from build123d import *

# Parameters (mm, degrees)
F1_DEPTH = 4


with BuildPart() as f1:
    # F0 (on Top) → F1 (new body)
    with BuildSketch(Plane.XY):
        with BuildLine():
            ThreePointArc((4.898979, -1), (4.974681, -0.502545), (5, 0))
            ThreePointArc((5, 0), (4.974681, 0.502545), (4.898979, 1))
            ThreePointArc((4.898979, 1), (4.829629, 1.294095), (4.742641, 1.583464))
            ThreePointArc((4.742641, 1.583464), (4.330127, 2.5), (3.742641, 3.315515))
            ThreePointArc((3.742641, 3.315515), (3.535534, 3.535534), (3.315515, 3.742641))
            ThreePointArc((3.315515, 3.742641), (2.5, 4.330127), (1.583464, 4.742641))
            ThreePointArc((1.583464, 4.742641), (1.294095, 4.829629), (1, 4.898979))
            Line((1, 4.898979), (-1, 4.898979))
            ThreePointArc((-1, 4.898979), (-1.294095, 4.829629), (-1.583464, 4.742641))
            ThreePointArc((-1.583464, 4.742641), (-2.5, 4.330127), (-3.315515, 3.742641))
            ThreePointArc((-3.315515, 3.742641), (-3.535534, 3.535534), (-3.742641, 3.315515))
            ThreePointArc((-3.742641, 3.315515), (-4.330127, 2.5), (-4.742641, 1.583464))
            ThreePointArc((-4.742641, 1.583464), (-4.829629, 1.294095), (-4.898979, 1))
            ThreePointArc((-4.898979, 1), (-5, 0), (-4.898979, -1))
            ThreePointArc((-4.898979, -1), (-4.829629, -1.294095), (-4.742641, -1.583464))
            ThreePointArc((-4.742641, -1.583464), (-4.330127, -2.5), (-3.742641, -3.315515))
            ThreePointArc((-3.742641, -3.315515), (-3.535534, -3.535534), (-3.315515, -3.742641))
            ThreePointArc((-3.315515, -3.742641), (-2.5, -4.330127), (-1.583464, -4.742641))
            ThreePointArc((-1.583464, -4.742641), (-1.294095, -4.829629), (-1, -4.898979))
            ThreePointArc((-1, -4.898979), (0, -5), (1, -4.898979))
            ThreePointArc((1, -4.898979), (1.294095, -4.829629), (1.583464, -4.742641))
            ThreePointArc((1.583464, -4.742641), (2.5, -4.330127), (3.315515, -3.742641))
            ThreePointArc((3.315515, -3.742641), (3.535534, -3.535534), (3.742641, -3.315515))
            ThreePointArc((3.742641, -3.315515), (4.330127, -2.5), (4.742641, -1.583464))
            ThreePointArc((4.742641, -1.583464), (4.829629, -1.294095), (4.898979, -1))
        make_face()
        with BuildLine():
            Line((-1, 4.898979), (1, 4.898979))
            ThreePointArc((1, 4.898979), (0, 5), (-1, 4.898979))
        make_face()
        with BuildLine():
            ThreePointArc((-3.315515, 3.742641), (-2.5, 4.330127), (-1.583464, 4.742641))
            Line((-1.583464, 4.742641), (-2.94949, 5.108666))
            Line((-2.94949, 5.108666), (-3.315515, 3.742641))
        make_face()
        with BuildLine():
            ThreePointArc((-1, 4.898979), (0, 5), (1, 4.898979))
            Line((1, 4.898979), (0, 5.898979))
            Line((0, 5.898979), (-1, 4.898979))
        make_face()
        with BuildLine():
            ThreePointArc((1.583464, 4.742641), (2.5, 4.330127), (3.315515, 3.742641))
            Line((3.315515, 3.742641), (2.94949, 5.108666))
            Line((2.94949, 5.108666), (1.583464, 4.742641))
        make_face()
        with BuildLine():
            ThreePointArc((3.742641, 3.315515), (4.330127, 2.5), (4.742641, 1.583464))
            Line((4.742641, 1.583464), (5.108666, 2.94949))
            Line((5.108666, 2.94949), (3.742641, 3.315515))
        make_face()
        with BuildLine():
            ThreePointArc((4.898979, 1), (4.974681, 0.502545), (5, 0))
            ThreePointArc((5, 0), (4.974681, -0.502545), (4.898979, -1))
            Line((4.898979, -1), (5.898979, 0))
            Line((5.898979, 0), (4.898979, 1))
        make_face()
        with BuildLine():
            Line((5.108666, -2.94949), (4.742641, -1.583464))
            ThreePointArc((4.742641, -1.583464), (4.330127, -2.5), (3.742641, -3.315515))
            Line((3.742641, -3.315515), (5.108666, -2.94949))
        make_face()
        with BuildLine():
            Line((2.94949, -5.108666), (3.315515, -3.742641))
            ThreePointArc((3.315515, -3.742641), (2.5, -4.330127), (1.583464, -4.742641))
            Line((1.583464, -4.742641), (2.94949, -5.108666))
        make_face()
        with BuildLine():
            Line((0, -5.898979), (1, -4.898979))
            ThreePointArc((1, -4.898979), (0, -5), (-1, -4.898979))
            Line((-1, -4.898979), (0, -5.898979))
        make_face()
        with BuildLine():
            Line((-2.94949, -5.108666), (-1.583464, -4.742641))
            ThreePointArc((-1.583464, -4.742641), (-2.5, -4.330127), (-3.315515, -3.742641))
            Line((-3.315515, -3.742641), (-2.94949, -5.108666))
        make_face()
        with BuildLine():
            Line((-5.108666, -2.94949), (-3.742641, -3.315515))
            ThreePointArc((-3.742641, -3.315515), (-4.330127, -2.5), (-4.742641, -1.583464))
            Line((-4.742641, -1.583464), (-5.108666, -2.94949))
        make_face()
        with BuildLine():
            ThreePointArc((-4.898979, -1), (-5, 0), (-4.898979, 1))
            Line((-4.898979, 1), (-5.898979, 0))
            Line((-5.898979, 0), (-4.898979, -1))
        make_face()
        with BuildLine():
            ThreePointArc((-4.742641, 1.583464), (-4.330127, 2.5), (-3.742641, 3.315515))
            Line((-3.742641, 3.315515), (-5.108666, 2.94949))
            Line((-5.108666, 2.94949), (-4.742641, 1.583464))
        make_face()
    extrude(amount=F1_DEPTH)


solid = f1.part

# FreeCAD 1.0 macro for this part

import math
import FreeCAD as App
import Part
import Sketcher
Q = App.Units.Quantity

doc = App.newDocument("Part")
params = doc.addObject("Spreadsheet::Sheet", "Params")
for row, (alias, value) in enumerate([
    ("pad1_length", "4 mm"),
], start=1):
    params.set(f"A{row}", alias)
    params.set(f"B{row}", "=" + value)
    params.setAlias(f"B{row}", alias)

body = doc.addObject("PartDesign::Body", "Body")

# Sketch on XY plane
sketch1 = body.newObject("Sketcher::SketchObject", "Sketch")
sketch1.AttachmentSupport = (doc.getObject("XY_Plane"), [""])
sketch1.MapMode = "FlatFace"
sketch1.addGeometry([
    Part.ArcOfCircle(Part.Circle(App.Vector(-0.000024, -0.000001, 0), App.Vector(0, 0, 1), 5.000023), math.radians(11.536913), math.radians(18.462957)),  # 0
    Part.LineSegment(App.Vector(4.742641, 1.583464, 0), App.Vector(5.108666, 2.94949, 0)),  # 1
    Part.LineSegment(App.Vector(5.108666, 2.94949, 0), App.Vector(3.742641, 3.315515, 0)),  # 2
    Part.ArcOfCircle(Part.Circle(App.Vector(-0.000002, -0.000002, 0), App.Vector(0, 0, 1), 5.000002), math.radians(41.536957), math.radians(48.463043)),  # 3
    Part.LineSegment(App.Vector(3.315515, 3.742641, 0), App.Vector(2.94949, 5.108666, 0)),  # 4
    Part.LineSegment(App.Vector(2.94949, 5.108666, 0), App.Vector(1.583464, 4.742641, 0)),  # 5
    Part.ArcOfCircle(Part.Circle(App.Vector(-0.000001, -0.000024, 0), App.Vector(0, 0, 1), 5.000023), math.radians(71.537043), math.radians(78.463087)),  # 6
    Part.LineSegment(App.Vector(1, 4.898979, 0), App.Vector(0, 5.898979, 0)),  # 7
    Part.LineSegment(App.Vector(0, 5.898979, 0), App.Vector(-1, 4.898979, 0)),  # 8
    Part.ArcOfCircle(Part.Circle(App.Vector(0.000001, -0.000024, 0), App.Vector(0, 0, 1), 5.000023), math.radians(101.536913), math.radians(108.462957)),  # 9
    Part.LineSegment(App.Vector(-1.583464, 4.742641, 0), App.Vector(-2.94949, 5.108666, 0)),  # 10
    Part.LineSegment(App.Vector(-2.94949, 5.108666, 0), App.Vector(-3.315515, 3.742641, 0)),  # 11
    Part.ArcOfCircle(Part.Circle(App.Vector(0.000002, -0.000002, 0), App.Vector(0, 0, 1), 5.000002), math.radians(131.536957), math.radians(138.463043)),  # 12
    Part.LineSegment(App.Vector(-3.742641, 3.315515, 0), App.Vector(-5.108666, 2.94949, 0)),  # 13
    Part.LineSegment(App.Vector(-5.108666, 2.94949, 0), App.Vector(-4.742641, 1.583464, 0)),  # 14
    Part.ArcOfCircle(Part.Circle(App.Vector(0.000024, -0.000001, 0), App.Vector(0, 0, 1), 5.000023), math.radians(161.537043), math.radians(168.463087)),  # 15
    Part.LineSegment(App.Vector(-4.898979, 1, 0), App.Vector(-5.898979, 0, 0)),  # 16
    Part.LineSegment(App.Vector(-5.898979, 0, 0), App.Vector(-4.898979, -1, 0)),  # 17
    Part.ArcOfCircle(Part.Circle(App.Vector(0.000024, 0.000001, 0), App.Vector(0, 0, 1), 5.000023), math.radians(-168.463087), math.radians(-161.537043)),  # 18
    Part.LineSegment(App.Vector(-4.742641, -1.583464, 0), App.Vector(-5.108666, -2.94949, 0)),  # 19
    Part.LineSegment(App.Vector(-5.108666, -2.94949, 0), App.Vector(-3.742641, -3.315515, 0)),  # 20
    Part.ArcOfCircle(Part.Circle(App.Vector(0.000002, 0.000002, 0), App.Vector(0, 0, 1), 5.000002), math.radians(-138.463043), math.radians(-131.536957)),  # 21
    Part.LineSegment(App.Vector(-3.315515, -3.742641, 0), App.Vector(-2.94949, -5.108666, 0)),  # 22
    Part.LineSegment(App.Vector(-2.94949, -5.108666, 0), App.Vector(-1.583464, -4.742641, 0)),  # 23
    Part.ArcOfCircle(Part.Circle(App.Vector(0.000001, 0.000024, 0), App.Vector(0, 0, 1), 5.000023), math.radians(-108.462957), math.radians(-101.536913)),  # 24
    Part.LineSegment(App.Vector(-1, -4.898979, 0), App.Vector(0, -5.898979, 0)),  # 25
    Part.LineSegment(App.Vector(0, -5.898979, 0), App.Vector(1, -4.898979, 0)),  # 26
    Part.ArcOfCircle(Part.Circle(App.Vector(-0.000001, 0.000024, 0), App.Vector(0, 0, 1), 5.000023), math.radians(-78.463087), math.radians(-71.537043)),  # 27
    Part.LineSegment(App.Vector(1.583464, -4.742641, 0), App.Vector(2.94949, -5.108666, 0)),  # 28
    Part.LineSegment(App.Vector(2.94949, -5.108666, 0), App.Vector(3.315515, -3.742641, 0)),  # 29
    Part.ArcOfCircle(Part.Circle(App.Vector(-0.000002, 0.000002, 0), App.Vector(0, 0, 1), 5.000002), math.radians(-48.463043), math.radians(-41.536957)),  # 30
    Part.LineSegment(App.Vector(3.742641, -3.315515, 0), App.Vector(5.108666, -2.94949, 0)),  # 31
    Part.LineSegment(App.Vector(5.108666, -2.94949, 0), App.Vector(4.742641, -1.583464, 0)),  # 32
    Part.ArcOfCircle(Part.Circle(App.Vector(-0.000024, 0.000001, 0), App.Vector(0, 0, 1), 5.000023), math.radians(-18.462957), math.radians(-11.536913)),  # 33
    Part.LineSegment(App.Vector(4.898979, -1, 0), App.Vector(5.898979, 0, 0)),  # 34
    Part.LineSegment(App.Vector(5.898979, 0, 0), App.Vector(4.898979, 1, 0)),  # 35
], False)
sketch1.addConstraint([
    Sketcher.Constraint("Coincident", 0, 2, 1, 1),
    Sketcher.Constraint("Coincident", 1, 2, 2, 1),
    Sketcher.Constraint("Coincident", 2, 2, 3, 1),
    Sketcher.Constraint("Coincident", 3, 2, 4, 1),
    Sketcher.Constraint("Coincident", 4, 2, 5, 1),
    Sketcher.Constraint("Coincident", 5, 2, 6, 1),
    Sketcher.Constraint("Coincident", 6, 2, 7, 1),
    Sketcher.Constraint("Coincident", 7, 2, 8, 1),
    Sketcher.Constraint("Coincident", 8, 2, 9, 1),
    Sketcher.Constraint("Coincident", 9, 2, 10, 1),
    Sketcher.Constraint("Coincident", 10, 2, 11, 1),
    Sketcher.Constraint("Coincident", 11, 2, 12, 1),
    Sketcher.Constraint("Coincident", 12, 2, 13, 1),
    Sketcher.Constraint("Coincident", 13, 2, 14, 1),
    Sketcher.Constraint("Coincident", 14, 2, 15, 1),
    Sketcher.Constraint("Coincident", 15, 2, 16, 1),
    Sketcher.Constraint("Coincident", 16, 2, 17, 1),
    Sketcher.Constraint("Coincident", 17, 2, 18, 1),
    Sketcher.Constraint("Coincident", 18, 2, 19, 1),
    Sketcher.Constraint("Coincident", 19, 2, 20, 1),
    Sketcher.Constraint("Coincident", 20, 2, 21, 1),
    Sketcher.Constraint("Coincident", 21, 2, 22, 1),
    Sketcher.Constraint("Coincident", 22, 2, 23, 1),
    Sketcher.Constraint("Coincident", 23, 2, 24, 1),
    Sketcher.Constraint("Coincident", 24, 2, 25, 1),
    Sketcher.Constraint("Coincident", 25, 2, 26, 1),
    Sketcher.Constraint("Coincident", 26, 2, 27, 1),
    Sketcher.Constraint("Coincident", 27, 2, 28, 1),
    Sketcher.Constraint("Coincident", 28, 2, 29, 1),
    Sketcher.Constraint("Coincident", 29, 2, 30, 1),
    Sketcher.Constraint("Coincident", 30, 2, 31, 1),
    Sketcher.Constraint("Coincident", 31, 2, 32, 1),
    Sketcher.Constraint("Coincident", 32, 2, 33, 1),
    Sketcher.Constraint("Coincident", 33, 2, 34, 1),
    Sketcher.Constraint("Coincident", 34, 2, 35, 1),
    Sketcher.Constraint("Coincident", 35, 2, 0, 1),
    Sketcher.Constraint("Coincident", 3, 3, -1, 1),
    Sketcher.Constraint("Coincident", 12, 3, -1, 1),
    Sketcher.Constraint("Coincident", 21, 3, -1, 1),
    Sketcher.Constraint("Coincident", 30, 3, -1, 1),
    Sketcher.Constraint("Coincident", 9, 3, 6, 3),
    Sketcher.Constraint("Coincident", 18, 3, 15, 3),
    Sketcher.Constraint("Coincident", 27, 3, 24, 3),
    Sketcher.Constraint("Coincident", 33, 3, 0, 3),
    Sketcher.Constraint("Equal", 0, 6),
    Sketcher.Constraint("Equal", 6, 9),
    Sketcher.Constraint("Equal", 3, 12),
    Sketcher.Constraint("Equal", 9, 15),
    Sketcher.Constraint("Equal", 15, 18),
    Sketcher.Constraint("Equal", 12, 21),
    Sketcher.Constraint("Equal", 18, 24),
    Sketcher.Constraint("Equal", 24, 27),
    Sketcher.Constraint("Equal", 21, 30),
    Sketcher.Constraint("Equal", 27, 33),
    Sketcher.Constraint("Symmetric", 0, 3, 15, 3, -1, 1),
    Sketcher.Constraint("Symmetric", 6, 3, 24, 3, -1, 1),
    Sketcher.Constraint("Symmetric", 1, 2, 19, 2, -1, 1),
    Sketcher.Constraint("Symmetric", 4, 2, 22, 2, -1, 1),
    Sketcher.Constraint("Symmetric", 7, 2, 25, 2, -1, 1),
    Sketcher.Constraint("Symmetric", 10, 2, 28, 2, -1, 1),
    Sketcher.Constraint("Symmetric", 13, 2, 31, 2, -1, 1),
    Sketcher.Constraint("Symmetric", 16, 2, 34, 2, -1, 1),
    Sketcher.Constraint("Symmetric", 6, 2, 8, 2, -2),
    Sketcher.Constraint("Symmetric", 4, 2, 10, 2, -2),
    Sketcher.Constraint("Symmetric", 1, 2, 13, 2, -2),
    Sketcher.Constraint("Symmetric", 0, 2, 14, 2, -2),
    Sketcher.Constraint("PointOnObject", 7, 2, -2),
    Sketcher.Constraint("PointOnObject", 16, 2, -1),
    Sketcher.Constraint("Perpendicular", 1, 2),
    Sketcher.Constraint("Perpendicular", 4, 5),
    Sketcher.Constraint("Perpendicular", 7, 8),
    Sketcher.Constraint("Parallel", 2, 10),
    Sketcher.Constraint("Perpendicular", 10, 11),
    Sketcher.Constraint("Parallel", 5, 13),
    Sketcher.Constraint("Perpendicular", 13, 14),
    Sketcher.Constraint("Parallel", 8, 16),
    Sketcher.Constraint("Perpendicular", 16, 17),
    Sketcher.Constraint("Parallel", 11, 19),
    Sketcher.Constraint("Perpendicular", 19, 20),
    Sketcher.Constraint("Parallel", 14, 22),
    Sketcher.Constraint("Perpendicular", 22, 23),
    Sketcher.Constraint("Parallel", 17, 25),
    Sketcher.Constraint("Perpendicular", 25, 26),
    Sketcher.Constraint("Parallel", 20, 28),
    Sketcher.Constraint("Perpendicular", 28, 29),
    Sketcher.Constraint("Parallel", 23, 31),
    Sketcher.Constraint("Perpendicular", 31, 32),
    Sketcher.Constraint("Parallel", 26, 34),
    Sketcher.Constraint("Perpendicular", 34, 35),
    Sketcher.Constraint("Equal", 1, 2),
    Sketcher.Constraint("Equal", 2, 4),
    Sketcher.Constraint("Equal", 4, 5),
    Sketcher.Constraint("Equal", 5, 7),
    Sketcher.Constraint("Equal", 14, 16),
    Sketcher.Constraint("Angle", 2, Q("165.000012 deg")),
    Sketcher.Constraint("DistanceX", -1, 1, 6, 2, 1.0),
    Sketcher.Constraint("Radius", 0, 5.000023),
    Sketcher.Constraint("Radius", 3, 5.000002),
    Sketcher.Constraint("DistanceX", -1, 1, 0, 2, 4.742641),
    Sketcher.Constraint("DistanceY", -1, 1, 3, 2, 3.742641),
])
pad1 = body.newObject("PartDesign::Pad", "Pad")
pad1.Profile = sketch1
pad1.setExpression("Length", "Params.pad1_length")

doc.recompute()
